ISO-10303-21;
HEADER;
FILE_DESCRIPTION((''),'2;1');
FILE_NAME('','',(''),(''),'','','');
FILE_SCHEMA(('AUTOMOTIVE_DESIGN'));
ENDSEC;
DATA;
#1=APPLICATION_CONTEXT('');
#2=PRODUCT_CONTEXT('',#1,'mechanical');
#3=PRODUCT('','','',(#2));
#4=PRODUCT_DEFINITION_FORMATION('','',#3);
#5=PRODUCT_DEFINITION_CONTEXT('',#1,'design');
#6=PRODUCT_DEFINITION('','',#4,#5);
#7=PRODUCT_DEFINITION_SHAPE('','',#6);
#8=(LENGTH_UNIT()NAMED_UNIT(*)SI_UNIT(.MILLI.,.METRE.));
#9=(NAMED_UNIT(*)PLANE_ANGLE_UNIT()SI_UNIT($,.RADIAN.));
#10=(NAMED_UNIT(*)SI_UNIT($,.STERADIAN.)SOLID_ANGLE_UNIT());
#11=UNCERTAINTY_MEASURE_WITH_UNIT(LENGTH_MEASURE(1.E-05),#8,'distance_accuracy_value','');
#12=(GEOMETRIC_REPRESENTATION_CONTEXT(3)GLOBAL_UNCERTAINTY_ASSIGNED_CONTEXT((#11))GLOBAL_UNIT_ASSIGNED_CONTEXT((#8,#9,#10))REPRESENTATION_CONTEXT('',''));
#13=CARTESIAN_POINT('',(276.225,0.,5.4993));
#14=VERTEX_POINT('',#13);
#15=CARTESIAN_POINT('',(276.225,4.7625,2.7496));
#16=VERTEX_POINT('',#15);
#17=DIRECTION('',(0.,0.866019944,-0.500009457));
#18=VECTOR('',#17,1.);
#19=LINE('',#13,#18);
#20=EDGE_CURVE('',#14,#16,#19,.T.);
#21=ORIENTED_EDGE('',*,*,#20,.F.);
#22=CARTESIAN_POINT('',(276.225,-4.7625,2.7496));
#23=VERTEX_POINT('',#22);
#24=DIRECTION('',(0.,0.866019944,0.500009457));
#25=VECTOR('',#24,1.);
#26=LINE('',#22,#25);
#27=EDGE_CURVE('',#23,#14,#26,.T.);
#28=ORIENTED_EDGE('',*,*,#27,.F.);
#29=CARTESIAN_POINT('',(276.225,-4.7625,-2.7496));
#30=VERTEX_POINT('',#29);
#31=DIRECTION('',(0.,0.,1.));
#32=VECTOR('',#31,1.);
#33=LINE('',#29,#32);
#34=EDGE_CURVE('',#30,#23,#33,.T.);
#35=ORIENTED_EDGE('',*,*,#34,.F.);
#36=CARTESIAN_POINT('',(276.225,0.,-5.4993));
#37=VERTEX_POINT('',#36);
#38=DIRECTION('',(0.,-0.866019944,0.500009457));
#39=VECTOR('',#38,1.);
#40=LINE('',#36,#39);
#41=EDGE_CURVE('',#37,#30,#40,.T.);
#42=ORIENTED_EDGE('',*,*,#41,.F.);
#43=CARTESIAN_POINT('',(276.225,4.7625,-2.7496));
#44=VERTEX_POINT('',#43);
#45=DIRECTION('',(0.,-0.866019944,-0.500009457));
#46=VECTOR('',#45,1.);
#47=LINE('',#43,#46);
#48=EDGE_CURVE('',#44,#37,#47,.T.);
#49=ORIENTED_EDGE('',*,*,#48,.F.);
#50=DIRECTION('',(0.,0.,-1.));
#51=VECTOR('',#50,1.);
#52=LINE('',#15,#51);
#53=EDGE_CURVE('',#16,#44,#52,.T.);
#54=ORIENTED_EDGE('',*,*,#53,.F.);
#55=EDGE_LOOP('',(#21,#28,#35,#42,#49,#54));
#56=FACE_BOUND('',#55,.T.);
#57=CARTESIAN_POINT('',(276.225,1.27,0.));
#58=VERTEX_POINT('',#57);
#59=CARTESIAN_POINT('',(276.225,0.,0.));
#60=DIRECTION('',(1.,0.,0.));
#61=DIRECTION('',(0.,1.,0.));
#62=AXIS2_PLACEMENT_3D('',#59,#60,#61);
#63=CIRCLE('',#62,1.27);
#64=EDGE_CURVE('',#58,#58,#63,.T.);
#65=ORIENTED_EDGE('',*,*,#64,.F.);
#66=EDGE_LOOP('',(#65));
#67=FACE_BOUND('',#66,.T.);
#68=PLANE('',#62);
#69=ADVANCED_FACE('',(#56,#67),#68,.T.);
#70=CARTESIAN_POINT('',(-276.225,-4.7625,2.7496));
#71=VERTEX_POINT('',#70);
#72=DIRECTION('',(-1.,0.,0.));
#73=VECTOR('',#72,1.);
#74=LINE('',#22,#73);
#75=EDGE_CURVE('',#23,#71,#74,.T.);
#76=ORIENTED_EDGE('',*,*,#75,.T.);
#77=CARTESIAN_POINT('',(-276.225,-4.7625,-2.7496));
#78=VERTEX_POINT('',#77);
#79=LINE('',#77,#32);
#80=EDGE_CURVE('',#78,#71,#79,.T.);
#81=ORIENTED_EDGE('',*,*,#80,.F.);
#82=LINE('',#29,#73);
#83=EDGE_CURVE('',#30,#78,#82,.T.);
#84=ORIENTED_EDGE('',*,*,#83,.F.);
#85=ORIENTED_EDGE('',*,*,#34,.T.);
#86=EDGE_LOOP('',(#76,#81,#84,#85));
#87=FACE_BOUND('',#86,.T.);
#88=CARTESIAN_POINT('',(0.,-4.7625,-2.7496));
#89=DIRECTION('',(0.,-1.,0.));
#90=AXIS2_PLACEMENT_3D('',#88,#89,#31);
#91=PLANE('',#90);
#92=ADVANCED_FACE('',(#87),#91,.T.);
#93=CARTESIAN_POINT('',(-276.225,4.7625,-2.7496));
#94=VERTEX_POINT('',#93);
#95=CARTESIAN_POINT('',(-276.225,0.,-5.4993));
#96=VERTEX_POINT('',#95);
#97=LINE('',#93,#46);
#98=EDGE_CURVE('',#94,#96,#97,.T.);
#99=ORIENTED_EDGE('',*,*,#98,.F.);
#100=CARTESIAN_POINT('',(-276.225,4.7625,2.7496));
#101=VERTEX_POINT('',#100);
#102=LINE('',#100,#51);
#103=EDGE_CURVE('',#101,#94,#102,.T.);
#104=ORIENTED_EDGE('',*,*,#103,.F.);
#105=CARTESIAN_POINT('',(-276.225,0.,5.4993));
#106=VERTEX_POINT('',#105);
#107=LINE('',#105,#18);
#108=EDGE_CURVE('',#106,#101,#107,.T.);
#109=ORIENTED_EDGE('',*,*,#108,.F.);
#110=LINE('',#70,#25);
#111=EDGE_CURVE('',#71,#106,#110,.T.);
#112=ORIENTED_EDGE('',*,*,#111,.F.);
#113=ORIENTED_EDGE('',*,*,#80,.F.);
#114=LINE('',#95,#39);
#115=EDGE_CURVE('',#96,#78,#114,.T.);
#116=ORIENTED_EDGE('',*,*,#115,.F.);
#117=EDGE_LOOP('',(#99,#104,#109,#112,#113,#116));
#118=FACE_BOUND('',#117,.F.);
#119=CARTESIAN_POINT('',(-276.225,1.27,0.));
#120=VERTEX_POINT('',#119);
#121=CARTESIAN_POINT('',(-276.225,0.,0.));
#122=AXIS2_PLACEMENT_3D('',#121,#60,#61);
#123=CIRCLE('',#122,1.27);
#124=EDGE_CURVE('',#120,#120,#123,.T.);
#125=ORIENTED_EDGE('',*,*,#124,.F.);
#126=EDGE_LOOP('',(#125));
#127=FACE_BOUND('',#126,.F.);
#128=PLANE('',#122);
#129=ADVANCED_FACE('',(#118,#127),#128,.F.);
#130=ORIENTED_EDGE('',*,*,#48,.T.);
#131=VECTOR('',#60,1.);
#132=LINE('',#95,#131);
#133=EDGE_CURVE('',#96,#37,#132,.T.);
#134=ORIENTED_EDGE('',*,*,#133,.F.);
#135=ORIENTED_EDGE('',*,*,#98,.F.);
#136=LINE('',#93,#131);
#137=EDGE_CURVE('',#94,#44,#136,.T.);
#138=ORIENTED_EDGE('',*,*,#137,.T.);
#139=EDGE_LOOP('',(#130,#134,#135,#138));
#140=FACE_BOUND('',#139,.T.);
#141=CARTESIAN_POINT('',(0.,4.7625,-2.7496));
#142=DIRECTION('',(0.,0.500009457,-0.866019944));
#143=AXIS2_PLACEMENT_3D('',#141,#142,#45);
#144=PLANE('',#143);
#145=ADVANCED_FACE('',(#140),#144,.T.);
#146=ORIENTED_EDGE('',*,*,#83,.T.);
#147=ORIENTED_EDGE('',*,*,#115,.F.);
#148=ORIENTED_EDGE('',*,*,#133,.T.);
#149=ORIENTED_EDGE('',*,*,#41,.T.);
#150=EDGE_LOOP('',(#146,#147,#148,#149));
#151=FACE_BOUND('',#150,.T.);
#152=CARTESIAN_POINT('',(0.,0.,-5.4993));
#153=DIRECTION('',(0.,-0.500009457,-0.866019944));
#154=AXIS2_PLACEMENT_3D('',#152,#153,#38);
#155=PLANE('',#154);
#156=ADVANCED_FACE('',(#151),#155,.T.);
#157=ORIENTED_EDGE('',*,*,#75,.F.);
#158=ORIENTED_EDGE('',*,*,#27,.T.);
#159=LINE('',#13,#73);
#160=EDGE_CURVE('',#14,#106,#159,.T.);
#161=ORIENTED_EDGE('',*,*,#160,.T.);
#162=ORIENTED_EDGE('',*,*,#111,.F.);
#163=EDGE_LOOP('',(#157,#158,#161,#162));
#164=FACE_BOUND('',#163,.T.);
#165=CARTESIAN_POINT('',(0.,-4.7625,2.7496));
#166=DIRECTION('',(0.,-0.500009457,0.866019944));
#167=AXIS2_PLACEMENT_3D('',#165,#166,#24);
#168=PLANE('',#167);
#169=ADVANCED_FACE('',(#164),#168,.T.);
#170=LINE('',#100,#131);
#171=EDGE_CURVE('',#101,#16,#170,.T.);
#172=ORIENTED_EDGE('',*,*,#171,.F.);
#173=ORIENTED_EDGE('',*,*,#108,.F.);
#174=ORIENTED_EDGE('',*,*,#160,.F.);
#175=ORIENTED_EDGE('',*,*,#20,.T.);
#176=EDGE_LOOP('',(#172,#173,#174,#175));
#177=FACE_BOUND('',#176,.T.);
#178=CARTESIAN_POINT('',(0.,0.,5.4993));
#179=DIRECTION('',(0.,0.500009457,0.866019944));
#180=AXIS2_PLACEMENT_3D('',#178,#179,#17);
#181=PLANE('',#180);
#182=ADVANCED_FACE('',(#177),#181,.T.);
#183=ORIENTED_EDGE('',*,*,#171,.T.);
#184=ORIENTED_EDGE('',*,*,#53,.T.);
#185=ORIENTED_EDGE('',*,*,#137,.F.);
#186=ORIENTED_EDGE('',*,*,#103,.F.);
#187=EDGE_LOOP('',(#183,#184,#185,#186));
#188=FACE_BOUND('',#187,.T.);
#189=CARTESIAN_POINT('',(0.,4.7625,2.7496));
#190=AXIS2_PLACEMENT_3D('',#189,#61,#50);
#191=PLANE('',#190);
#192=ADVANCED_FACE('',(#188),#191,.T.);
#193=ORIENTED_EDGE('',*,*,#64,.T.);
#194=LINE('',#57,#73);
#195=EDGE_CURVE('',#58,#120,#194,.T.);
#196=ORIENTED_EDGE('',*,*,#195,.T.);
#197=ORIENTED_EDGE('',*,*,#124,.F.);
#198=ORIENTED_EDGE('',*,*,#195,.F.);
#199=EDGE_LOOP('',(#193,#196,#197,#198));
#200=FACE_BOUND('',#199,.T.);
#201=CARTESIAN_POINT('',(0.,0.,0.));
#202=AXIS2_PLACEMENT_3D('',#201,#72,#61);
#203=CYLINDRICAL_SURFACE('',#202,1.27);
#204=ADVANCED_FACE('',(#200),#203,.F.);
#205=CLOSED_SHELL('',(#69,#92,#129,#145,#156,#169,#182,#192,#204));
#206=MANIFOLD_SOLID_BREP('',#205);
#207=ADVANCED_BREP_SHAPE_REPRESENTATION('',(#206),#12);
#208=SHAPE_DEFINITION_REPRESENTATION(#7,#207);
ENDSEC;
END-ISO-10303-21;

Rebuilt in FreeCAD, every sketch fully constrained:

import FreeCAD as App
import Part
import Sketcher

V = App.Vector
Q = App.Units.Quantity

doc = App.newDocument("Part")
body = doc.addObject("PartDesign::Body", "Body")

sketch1 = body.newObject("Sketcher::SketchObject", "Sketch")
sketch1.AttachmentSupport = (doc.getObject("YZ_Plane"), [""])
sketch1.MapMode = "FlatFace"
sketch1.addGeometry([
    Part.LineSegment(V(-4.8, -2.7, 0), V(0, -5.5, 0)),
    Part.LineSegment(V(0, -5.5, 0), V(4.8, -2.7, 0)),
    Part.LineSegment(V(4.8, -2.7, 0), V(4.8, 2.7, 0)),
    Part.LineSegment(V(4.8, 2.7, 0), V(0, 5.5, 0)),
    Part.LineSegment(V(0, 5.5, 0), V(-4.8, 2.7, 0)),
    Part.LineSegment(V(-4.8, 2.7, 0), V(-4.8, -2.7, 0)),
    Part.Circle(V(0, 0, 0), V(0, 0, 1), 1.3),
], False)
sketch1.addConstraint([
    Sketcher.Constraint("Coincident", 0, 2, 1, 1),
    Sketcher.Constraint("Coincident", 1, 2, 2, 1),
    Sketcher.Constraint("Coincident", 2, 2, 3, 1),
    Sketcher.Constraint("Coincident", 3, 2, 4, 1),
    Sketcher.Constraint("Coincident", 4, 2, 5, 1),
    Sketcher.Constraint("Coincident", 5, 2, 0, 1),
    Sketcher.Constraint("Vertical", 2),
    Sketcher.Constraint("Vertical", 5),
    Sketcher.Constraint("Coincident", 6, 3, -1, 1),
    Sketcher.Constraint("Symmetric", 0, 2, 3, 2, -1, 1),
    Sketcher.Constraint("Symmetric", 1, 2, 4, 2, -1, 1),
    Sketcher.Constraint("PointOnObject", 0, 2, -2),
    Sketcher.Constraint("Parallel", 0, 3),
    Sketcher.Constraint("Horizontal", 2, 2, 4, 2),
    Sketcher.Constraint("Diameter", 6, Q("0.1 in")),
    Sketcher.Constraint("Angle", 0, Q("-30.0006 deg")),
    Sketcher.Constraint("DistanceX", 4, 2, 2, 2, Q("0.375 in")),
    Sketcher.Constraint("DistanceY", 2, 1, 2, 2, Q("0.2165 in")),
])
pad1 = body.newObject("PartDesign::Pad", "Pad")
pad1.Profile = sketch1
pad1.Length = Q("21.75 in")
pad1.Midplane = True

doc.recompute()
